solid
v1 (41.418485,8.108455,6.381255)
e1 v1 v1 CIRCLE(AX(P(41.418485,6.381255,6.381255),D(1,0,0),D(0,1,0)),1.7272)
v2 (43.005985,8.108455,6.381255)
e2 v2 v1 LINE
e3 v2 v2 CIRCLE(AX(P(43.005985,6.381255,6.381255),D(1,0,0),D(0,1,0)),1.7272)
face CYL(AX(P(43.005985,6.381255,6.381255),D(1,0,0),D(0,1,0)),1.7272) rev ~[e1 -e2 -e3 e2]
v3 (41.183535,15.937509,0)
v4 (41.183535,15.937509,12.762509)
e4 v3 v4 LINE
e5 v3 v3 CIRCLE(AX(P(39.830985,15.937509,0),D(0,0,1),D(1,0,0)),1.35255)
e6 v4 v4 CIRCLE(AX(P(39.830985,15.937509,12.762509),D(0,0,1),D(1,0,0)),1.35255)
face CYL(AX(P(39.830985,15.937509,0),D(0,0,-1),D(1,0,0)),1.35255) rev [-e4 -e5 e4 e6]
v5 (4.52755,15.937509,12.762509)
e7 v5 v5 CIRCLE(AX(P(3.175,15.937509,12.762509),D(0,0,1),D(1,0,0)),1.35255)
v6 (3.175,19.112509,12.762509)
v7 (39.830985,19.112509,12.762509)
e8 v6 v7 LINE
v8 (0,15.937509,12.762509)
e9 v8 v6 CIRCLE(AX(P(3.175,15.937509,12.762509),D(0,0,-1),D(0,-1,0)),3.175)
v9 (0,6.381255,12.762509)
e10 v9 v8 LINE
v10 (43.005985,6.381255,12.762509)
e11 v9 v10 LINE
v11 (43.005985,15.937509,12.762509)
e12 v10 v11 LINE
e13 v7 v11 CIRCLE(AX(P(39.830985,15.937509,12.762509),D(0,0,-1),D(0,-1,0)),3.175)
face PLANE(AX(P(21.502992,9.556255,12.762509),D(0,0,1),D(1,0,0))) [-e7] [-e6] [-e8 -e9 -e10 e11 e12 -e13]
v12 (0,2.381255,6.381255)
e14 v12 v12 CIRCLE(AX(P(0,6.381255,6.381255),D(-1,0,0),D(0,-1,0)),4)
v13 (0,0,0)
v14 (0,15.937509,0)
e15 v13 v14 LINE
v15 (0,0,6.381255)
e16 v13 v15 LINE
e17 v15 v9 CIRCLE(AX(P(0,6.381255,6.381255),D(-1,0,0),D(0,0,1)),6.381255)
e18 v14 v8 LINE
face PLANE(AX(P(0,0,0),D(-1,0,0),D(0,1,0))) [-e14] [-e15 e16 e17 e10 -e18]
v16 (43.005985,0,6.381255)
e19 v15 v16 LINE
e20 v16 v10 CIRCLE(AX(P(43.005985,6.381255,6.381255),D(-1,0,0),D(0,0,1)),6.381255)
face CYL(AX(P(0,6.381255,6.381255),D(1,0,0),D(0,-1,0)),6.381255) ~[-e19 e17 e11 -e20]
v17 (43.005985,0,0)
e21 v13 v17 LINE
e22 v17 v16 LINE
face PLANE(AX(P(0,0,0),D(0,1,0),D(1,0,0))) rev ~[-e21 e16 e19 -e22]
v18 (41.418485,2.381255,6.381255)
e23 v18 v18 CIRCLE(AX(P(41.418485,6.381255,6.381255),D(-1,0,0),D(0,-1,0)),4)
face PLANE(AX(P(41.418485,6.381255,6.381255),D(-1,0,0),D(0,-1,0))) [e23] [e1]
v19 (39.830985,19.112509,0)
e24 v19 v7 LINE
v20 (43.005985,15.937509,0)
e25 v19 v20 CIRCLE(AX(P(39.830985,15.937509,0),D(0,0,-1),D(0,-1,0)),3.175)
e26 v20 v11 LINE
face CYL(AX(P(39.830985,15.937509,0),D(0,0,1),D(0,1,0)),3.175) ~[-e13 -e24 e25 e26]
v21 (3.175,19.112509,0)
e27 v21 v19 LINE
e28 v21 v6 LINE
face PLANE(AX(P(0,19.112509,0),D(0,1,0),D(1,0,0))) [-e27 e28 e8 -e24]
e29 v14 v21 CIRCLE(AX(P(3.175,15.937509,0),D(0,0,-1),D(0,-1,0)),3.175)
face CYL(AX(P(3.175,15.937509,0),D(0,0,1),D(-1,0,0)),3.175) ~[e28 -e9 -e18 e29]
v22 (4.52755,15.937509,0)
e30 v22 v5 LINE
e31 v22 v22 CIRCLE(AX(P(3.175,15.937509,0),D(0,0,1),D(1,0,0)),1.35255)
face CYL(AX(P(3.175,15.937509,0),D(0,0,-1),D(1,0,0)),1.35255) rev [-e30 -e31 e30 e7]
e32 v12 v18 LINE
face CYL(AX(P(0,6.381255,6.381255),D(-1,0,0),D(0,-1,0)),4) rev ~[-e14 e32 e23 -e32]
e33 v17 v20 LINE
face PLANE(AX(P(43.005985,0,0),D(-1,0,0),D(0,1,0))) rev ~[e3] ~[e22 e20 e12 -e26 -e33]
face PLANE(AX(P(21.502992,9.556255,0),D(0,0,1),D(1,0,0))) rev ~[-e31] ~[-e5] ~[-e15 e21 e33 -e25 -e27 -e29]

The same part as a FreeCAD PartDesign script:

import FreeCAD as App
import Part
import Sketcher
Q = App.Units.Quantity


def edges_at(feature, points):
    """Names of the edges that pass closest to the given points."""
    edges = feature.Shape.Edges
    near = lambda p: min(range(len(edges)), key=lambda i: edges[i].distToShape(Part.Vertex(*p))[0])
    return sorted({f"Edge{near(p) + 1}" for p in points})


def add_polygon(sketch, points):
    """Adds a closed chain of lines whose ends are joined by coincident constraints."""
    first, n = sketch.GeometryCount, len(points)
    for a, b in zip(points, points[1:] + points[:1]):
        sketch.addGeometry(Part.LineSegment(App.Vector(*a, 0), App.Vector(*b, 0)), False)
    for i in range(n):
        sketch.addConstraint(Sketcher.Constraint("Coincident", first + i, 2, first + (i + 1) % n, 1))

doc = App.newDocument("Part")
body = doc.addObject("PartDesign::Body", "Body")

sketch1 = body.newObject("Sketcher::SketchObject", "Sketch")
sketch1.AttachmentSupport = (doc.getObject("XY_Plane"), [""])
sketch1.MapMode = "FlatFace"
add_polygon(sketch1, [(0, 19.1), (0, 0), (43, 0), (43, 19.1)])
sketch1.addGeometry(Part.Circle(App.Vector(3.2, 15.9, 0), App.Vector(0, 0, 1), 1.4), False)
sketch1.addGeometry(Part.Circle(App.Vector(39.8, 15.9, 0), App.Vector(0, 0, 1), 1.4), False)
sketch1.addConstraint([
    Sketcher.Constraint("Vertical", 0),
    Sketcher.Constraint("Horizontal", 1),
    Sketcher.Constraint("Vertical", 2),
    Sketcher.Constraint("Horizontal", 3),
    Sketcher.Constraint("Coincident", 0, 2, -1, 1),
    Sketcher.Constraint("Equal", 4, 5),
    Sketcher.Constraint("Horizontal", 4, 3, 5, 3),
    Sketcher.Constraint("Diameter", 4, Q("0.1065 in")),
    Sketcher.Constraint("DistanceX", -1, 1, 4, 3, Q("0.125 in")),
    Sketcher.Constraint("DistanceX", 5, 3, 1, 2, Q("0.125 in")),
    Sketcher.Constraint("DistanceY", 5, 3, 2, 2, Q("0.125 in")),
    Sketcher.Constraint("DistanceY", 0, 2, 0, 1, 19.112509),
    Sketcher.Constraint("DistanceX", 1, 1, 1, 2, 43.005985),
])
pad1 = body.newObject("PartDesign::Pad", "Pad")
pad1.Profile = sketch1
pad1.Length = 12.762509
doc.recompute()

fillet = body.newObject("PartDesign::Fillet", "Fillet")
fillet.Base = (pad1, edges_at(pad1, [(43.006, 19.113, 6.381), (0, 19.113, 6.381)]))
fillet.Radius = Q("0.125 in")
doc.recompute()

fillet2 = body.newObject("PartDesign::Fillet", "Fillet001")
fillet2.Base = (fillet, edges_at(fillet, [(21.503, 0, 12.763)]))
fillet2.Radius = 6.381255

sketch2 = body.newObject("Sketcher::SketchObject", "Sketch001")
sketch2.AttachmentSupport = (doc.getObject("YZ_Plane"), [""])
sketch2.MapMode = "FlatFace"
sketch2.AttachmentOffset = App.Placement(App.Vector(0, 0, 43.005985), App.Rotation())
sketch2.addGeometry(Part.Circle(App.Vector(6.4, 6.4, 0), App.Vector(0, 0, 1), 1.7), False)
sketch2.addConstraint([
    Sketcher.Constraint("Diameter", 0, Q("0.136 in")),
    Sketcher.Constraint("DistanceX", -1, 1, 0, 3, 6.381255),
    Sketcher.Constraint("DistanceY", -1, 1, 0, 3, 6.381255),
])
pocket1 = body.newObject("PartDesign::Pocket", "Pocket")
pocket1.Profile = sketch2
pocket1.Type = "ThroughAll"

sketch3 = body.newObject("Sketcher::SketchObject", "Sketch002")
sketch3.AttachmentSupport = (doc.getObject("YZ_Plane"), [""])
sketch3.MapMode = "FlatFace"
sketch3.addGeometry([
    Part.Circle(App.Vector(6.4, 6.4, 0), App.Vector(0, 0, 1), 4),
    Part.Circle(App.Vector(6.4, 6.4, 0), App.Vector(0, 0, 1), 1.7),
], False)
sketch3.addConstraint([
    Sketcher.Constraint("Coincident", 1, 3, 0, 3),
    Sketcher.Constraint("Diameter", 1, Q("0.136 in")),
    Sketcher.Constraint("Diameter", 0, 8.0),
    Sketcher.Constraint("DistanceX", -1, 1, 0, 3, 6.381255),
    Sketcher.Constraint("DistanceY", -1, 1, 0, 3, 6.381255),
])
pocket2 = body.newObject("PartDesign::Pocket", "Pocket001")
pocket2.Profile = sketch3
pocket2.Length = 41.418485
pocket2.Reversed = True

doc.recompute()
